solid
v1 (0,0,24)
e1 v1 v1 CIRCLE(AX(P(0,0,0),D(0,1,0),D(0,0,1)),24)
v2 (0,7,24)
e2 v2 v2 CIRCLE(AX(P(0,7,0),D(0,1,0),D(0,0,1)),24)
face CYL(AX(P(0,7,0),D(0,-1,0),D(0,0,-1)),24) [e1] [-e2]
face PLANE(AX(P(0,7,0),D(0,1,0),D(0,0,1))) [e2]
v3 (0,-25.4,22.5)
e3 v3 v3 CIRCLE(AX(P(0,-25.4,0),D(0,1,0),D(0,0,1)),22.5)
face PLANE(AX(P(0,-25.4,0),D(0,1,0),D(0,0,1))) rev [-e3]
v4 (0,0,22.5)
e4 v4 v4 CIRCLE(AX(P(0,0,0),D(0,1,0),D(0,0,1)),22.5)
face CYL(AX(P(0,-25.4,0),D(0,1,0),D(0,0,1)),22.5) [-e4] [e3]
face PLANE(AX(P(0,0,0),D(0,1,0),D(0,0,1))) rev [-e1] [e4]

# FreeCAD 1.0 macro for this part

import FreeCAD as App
import Part
import Sketcher

V = App.Vector
Q = App.Units.Quantity

doc = App.newDocument("Part")
body = doc.addObject("PartDesign::Body", "Body")

# Sketch on XZ plane
sketch1 = body.newObject("Sketcher::SketchObject", "Sketch")
sketch1.AttachmentSupport = (doc.getObject("XZ_Plane"), [""])
sketch1.MapMode = "FlatFace"
sketch1.addGeometry(Part.Circle(V(0, 0, 0), V(0, 0, 1), 22), False)
sketch1.addConstraint([
    Sketcher.Constraint("Coincident", 0, 3, -1, 1),
    Sketcher.Constraint("Diameter", 0, Q("45 mm")),
])
pad1 = body.newObject("PartDesign::Pad", "Pad")
pad1.Profile = sketch1
pad1.Length = 25.4

# Sketch on XZ plane
sketch2 = body.newObject("Sketcher::SketchObject", "Sketch001")
sketch2.AttachmentSupport = (doc.getObject("XZ_Plane"), [""])
sketch2.MapMode = "FlatFace"
sketch2.addGeometry(Part.Circle(V(0, 0, 0), V(0, 0, 1), 24), False)
sketch2.addConstraint([
    Sketcher.Constraint("Coincident", 0, 3, -1, 1),
    Sketcher.Constraint("Diameter", 0, Q("48 mm")),
])
pad2 = body.newObject("PartDesign::Pad", "Pad001")
pad2.Profile = sketch2
pad2.Length = 7
pad2.Reversed = True

doc.recompute()
